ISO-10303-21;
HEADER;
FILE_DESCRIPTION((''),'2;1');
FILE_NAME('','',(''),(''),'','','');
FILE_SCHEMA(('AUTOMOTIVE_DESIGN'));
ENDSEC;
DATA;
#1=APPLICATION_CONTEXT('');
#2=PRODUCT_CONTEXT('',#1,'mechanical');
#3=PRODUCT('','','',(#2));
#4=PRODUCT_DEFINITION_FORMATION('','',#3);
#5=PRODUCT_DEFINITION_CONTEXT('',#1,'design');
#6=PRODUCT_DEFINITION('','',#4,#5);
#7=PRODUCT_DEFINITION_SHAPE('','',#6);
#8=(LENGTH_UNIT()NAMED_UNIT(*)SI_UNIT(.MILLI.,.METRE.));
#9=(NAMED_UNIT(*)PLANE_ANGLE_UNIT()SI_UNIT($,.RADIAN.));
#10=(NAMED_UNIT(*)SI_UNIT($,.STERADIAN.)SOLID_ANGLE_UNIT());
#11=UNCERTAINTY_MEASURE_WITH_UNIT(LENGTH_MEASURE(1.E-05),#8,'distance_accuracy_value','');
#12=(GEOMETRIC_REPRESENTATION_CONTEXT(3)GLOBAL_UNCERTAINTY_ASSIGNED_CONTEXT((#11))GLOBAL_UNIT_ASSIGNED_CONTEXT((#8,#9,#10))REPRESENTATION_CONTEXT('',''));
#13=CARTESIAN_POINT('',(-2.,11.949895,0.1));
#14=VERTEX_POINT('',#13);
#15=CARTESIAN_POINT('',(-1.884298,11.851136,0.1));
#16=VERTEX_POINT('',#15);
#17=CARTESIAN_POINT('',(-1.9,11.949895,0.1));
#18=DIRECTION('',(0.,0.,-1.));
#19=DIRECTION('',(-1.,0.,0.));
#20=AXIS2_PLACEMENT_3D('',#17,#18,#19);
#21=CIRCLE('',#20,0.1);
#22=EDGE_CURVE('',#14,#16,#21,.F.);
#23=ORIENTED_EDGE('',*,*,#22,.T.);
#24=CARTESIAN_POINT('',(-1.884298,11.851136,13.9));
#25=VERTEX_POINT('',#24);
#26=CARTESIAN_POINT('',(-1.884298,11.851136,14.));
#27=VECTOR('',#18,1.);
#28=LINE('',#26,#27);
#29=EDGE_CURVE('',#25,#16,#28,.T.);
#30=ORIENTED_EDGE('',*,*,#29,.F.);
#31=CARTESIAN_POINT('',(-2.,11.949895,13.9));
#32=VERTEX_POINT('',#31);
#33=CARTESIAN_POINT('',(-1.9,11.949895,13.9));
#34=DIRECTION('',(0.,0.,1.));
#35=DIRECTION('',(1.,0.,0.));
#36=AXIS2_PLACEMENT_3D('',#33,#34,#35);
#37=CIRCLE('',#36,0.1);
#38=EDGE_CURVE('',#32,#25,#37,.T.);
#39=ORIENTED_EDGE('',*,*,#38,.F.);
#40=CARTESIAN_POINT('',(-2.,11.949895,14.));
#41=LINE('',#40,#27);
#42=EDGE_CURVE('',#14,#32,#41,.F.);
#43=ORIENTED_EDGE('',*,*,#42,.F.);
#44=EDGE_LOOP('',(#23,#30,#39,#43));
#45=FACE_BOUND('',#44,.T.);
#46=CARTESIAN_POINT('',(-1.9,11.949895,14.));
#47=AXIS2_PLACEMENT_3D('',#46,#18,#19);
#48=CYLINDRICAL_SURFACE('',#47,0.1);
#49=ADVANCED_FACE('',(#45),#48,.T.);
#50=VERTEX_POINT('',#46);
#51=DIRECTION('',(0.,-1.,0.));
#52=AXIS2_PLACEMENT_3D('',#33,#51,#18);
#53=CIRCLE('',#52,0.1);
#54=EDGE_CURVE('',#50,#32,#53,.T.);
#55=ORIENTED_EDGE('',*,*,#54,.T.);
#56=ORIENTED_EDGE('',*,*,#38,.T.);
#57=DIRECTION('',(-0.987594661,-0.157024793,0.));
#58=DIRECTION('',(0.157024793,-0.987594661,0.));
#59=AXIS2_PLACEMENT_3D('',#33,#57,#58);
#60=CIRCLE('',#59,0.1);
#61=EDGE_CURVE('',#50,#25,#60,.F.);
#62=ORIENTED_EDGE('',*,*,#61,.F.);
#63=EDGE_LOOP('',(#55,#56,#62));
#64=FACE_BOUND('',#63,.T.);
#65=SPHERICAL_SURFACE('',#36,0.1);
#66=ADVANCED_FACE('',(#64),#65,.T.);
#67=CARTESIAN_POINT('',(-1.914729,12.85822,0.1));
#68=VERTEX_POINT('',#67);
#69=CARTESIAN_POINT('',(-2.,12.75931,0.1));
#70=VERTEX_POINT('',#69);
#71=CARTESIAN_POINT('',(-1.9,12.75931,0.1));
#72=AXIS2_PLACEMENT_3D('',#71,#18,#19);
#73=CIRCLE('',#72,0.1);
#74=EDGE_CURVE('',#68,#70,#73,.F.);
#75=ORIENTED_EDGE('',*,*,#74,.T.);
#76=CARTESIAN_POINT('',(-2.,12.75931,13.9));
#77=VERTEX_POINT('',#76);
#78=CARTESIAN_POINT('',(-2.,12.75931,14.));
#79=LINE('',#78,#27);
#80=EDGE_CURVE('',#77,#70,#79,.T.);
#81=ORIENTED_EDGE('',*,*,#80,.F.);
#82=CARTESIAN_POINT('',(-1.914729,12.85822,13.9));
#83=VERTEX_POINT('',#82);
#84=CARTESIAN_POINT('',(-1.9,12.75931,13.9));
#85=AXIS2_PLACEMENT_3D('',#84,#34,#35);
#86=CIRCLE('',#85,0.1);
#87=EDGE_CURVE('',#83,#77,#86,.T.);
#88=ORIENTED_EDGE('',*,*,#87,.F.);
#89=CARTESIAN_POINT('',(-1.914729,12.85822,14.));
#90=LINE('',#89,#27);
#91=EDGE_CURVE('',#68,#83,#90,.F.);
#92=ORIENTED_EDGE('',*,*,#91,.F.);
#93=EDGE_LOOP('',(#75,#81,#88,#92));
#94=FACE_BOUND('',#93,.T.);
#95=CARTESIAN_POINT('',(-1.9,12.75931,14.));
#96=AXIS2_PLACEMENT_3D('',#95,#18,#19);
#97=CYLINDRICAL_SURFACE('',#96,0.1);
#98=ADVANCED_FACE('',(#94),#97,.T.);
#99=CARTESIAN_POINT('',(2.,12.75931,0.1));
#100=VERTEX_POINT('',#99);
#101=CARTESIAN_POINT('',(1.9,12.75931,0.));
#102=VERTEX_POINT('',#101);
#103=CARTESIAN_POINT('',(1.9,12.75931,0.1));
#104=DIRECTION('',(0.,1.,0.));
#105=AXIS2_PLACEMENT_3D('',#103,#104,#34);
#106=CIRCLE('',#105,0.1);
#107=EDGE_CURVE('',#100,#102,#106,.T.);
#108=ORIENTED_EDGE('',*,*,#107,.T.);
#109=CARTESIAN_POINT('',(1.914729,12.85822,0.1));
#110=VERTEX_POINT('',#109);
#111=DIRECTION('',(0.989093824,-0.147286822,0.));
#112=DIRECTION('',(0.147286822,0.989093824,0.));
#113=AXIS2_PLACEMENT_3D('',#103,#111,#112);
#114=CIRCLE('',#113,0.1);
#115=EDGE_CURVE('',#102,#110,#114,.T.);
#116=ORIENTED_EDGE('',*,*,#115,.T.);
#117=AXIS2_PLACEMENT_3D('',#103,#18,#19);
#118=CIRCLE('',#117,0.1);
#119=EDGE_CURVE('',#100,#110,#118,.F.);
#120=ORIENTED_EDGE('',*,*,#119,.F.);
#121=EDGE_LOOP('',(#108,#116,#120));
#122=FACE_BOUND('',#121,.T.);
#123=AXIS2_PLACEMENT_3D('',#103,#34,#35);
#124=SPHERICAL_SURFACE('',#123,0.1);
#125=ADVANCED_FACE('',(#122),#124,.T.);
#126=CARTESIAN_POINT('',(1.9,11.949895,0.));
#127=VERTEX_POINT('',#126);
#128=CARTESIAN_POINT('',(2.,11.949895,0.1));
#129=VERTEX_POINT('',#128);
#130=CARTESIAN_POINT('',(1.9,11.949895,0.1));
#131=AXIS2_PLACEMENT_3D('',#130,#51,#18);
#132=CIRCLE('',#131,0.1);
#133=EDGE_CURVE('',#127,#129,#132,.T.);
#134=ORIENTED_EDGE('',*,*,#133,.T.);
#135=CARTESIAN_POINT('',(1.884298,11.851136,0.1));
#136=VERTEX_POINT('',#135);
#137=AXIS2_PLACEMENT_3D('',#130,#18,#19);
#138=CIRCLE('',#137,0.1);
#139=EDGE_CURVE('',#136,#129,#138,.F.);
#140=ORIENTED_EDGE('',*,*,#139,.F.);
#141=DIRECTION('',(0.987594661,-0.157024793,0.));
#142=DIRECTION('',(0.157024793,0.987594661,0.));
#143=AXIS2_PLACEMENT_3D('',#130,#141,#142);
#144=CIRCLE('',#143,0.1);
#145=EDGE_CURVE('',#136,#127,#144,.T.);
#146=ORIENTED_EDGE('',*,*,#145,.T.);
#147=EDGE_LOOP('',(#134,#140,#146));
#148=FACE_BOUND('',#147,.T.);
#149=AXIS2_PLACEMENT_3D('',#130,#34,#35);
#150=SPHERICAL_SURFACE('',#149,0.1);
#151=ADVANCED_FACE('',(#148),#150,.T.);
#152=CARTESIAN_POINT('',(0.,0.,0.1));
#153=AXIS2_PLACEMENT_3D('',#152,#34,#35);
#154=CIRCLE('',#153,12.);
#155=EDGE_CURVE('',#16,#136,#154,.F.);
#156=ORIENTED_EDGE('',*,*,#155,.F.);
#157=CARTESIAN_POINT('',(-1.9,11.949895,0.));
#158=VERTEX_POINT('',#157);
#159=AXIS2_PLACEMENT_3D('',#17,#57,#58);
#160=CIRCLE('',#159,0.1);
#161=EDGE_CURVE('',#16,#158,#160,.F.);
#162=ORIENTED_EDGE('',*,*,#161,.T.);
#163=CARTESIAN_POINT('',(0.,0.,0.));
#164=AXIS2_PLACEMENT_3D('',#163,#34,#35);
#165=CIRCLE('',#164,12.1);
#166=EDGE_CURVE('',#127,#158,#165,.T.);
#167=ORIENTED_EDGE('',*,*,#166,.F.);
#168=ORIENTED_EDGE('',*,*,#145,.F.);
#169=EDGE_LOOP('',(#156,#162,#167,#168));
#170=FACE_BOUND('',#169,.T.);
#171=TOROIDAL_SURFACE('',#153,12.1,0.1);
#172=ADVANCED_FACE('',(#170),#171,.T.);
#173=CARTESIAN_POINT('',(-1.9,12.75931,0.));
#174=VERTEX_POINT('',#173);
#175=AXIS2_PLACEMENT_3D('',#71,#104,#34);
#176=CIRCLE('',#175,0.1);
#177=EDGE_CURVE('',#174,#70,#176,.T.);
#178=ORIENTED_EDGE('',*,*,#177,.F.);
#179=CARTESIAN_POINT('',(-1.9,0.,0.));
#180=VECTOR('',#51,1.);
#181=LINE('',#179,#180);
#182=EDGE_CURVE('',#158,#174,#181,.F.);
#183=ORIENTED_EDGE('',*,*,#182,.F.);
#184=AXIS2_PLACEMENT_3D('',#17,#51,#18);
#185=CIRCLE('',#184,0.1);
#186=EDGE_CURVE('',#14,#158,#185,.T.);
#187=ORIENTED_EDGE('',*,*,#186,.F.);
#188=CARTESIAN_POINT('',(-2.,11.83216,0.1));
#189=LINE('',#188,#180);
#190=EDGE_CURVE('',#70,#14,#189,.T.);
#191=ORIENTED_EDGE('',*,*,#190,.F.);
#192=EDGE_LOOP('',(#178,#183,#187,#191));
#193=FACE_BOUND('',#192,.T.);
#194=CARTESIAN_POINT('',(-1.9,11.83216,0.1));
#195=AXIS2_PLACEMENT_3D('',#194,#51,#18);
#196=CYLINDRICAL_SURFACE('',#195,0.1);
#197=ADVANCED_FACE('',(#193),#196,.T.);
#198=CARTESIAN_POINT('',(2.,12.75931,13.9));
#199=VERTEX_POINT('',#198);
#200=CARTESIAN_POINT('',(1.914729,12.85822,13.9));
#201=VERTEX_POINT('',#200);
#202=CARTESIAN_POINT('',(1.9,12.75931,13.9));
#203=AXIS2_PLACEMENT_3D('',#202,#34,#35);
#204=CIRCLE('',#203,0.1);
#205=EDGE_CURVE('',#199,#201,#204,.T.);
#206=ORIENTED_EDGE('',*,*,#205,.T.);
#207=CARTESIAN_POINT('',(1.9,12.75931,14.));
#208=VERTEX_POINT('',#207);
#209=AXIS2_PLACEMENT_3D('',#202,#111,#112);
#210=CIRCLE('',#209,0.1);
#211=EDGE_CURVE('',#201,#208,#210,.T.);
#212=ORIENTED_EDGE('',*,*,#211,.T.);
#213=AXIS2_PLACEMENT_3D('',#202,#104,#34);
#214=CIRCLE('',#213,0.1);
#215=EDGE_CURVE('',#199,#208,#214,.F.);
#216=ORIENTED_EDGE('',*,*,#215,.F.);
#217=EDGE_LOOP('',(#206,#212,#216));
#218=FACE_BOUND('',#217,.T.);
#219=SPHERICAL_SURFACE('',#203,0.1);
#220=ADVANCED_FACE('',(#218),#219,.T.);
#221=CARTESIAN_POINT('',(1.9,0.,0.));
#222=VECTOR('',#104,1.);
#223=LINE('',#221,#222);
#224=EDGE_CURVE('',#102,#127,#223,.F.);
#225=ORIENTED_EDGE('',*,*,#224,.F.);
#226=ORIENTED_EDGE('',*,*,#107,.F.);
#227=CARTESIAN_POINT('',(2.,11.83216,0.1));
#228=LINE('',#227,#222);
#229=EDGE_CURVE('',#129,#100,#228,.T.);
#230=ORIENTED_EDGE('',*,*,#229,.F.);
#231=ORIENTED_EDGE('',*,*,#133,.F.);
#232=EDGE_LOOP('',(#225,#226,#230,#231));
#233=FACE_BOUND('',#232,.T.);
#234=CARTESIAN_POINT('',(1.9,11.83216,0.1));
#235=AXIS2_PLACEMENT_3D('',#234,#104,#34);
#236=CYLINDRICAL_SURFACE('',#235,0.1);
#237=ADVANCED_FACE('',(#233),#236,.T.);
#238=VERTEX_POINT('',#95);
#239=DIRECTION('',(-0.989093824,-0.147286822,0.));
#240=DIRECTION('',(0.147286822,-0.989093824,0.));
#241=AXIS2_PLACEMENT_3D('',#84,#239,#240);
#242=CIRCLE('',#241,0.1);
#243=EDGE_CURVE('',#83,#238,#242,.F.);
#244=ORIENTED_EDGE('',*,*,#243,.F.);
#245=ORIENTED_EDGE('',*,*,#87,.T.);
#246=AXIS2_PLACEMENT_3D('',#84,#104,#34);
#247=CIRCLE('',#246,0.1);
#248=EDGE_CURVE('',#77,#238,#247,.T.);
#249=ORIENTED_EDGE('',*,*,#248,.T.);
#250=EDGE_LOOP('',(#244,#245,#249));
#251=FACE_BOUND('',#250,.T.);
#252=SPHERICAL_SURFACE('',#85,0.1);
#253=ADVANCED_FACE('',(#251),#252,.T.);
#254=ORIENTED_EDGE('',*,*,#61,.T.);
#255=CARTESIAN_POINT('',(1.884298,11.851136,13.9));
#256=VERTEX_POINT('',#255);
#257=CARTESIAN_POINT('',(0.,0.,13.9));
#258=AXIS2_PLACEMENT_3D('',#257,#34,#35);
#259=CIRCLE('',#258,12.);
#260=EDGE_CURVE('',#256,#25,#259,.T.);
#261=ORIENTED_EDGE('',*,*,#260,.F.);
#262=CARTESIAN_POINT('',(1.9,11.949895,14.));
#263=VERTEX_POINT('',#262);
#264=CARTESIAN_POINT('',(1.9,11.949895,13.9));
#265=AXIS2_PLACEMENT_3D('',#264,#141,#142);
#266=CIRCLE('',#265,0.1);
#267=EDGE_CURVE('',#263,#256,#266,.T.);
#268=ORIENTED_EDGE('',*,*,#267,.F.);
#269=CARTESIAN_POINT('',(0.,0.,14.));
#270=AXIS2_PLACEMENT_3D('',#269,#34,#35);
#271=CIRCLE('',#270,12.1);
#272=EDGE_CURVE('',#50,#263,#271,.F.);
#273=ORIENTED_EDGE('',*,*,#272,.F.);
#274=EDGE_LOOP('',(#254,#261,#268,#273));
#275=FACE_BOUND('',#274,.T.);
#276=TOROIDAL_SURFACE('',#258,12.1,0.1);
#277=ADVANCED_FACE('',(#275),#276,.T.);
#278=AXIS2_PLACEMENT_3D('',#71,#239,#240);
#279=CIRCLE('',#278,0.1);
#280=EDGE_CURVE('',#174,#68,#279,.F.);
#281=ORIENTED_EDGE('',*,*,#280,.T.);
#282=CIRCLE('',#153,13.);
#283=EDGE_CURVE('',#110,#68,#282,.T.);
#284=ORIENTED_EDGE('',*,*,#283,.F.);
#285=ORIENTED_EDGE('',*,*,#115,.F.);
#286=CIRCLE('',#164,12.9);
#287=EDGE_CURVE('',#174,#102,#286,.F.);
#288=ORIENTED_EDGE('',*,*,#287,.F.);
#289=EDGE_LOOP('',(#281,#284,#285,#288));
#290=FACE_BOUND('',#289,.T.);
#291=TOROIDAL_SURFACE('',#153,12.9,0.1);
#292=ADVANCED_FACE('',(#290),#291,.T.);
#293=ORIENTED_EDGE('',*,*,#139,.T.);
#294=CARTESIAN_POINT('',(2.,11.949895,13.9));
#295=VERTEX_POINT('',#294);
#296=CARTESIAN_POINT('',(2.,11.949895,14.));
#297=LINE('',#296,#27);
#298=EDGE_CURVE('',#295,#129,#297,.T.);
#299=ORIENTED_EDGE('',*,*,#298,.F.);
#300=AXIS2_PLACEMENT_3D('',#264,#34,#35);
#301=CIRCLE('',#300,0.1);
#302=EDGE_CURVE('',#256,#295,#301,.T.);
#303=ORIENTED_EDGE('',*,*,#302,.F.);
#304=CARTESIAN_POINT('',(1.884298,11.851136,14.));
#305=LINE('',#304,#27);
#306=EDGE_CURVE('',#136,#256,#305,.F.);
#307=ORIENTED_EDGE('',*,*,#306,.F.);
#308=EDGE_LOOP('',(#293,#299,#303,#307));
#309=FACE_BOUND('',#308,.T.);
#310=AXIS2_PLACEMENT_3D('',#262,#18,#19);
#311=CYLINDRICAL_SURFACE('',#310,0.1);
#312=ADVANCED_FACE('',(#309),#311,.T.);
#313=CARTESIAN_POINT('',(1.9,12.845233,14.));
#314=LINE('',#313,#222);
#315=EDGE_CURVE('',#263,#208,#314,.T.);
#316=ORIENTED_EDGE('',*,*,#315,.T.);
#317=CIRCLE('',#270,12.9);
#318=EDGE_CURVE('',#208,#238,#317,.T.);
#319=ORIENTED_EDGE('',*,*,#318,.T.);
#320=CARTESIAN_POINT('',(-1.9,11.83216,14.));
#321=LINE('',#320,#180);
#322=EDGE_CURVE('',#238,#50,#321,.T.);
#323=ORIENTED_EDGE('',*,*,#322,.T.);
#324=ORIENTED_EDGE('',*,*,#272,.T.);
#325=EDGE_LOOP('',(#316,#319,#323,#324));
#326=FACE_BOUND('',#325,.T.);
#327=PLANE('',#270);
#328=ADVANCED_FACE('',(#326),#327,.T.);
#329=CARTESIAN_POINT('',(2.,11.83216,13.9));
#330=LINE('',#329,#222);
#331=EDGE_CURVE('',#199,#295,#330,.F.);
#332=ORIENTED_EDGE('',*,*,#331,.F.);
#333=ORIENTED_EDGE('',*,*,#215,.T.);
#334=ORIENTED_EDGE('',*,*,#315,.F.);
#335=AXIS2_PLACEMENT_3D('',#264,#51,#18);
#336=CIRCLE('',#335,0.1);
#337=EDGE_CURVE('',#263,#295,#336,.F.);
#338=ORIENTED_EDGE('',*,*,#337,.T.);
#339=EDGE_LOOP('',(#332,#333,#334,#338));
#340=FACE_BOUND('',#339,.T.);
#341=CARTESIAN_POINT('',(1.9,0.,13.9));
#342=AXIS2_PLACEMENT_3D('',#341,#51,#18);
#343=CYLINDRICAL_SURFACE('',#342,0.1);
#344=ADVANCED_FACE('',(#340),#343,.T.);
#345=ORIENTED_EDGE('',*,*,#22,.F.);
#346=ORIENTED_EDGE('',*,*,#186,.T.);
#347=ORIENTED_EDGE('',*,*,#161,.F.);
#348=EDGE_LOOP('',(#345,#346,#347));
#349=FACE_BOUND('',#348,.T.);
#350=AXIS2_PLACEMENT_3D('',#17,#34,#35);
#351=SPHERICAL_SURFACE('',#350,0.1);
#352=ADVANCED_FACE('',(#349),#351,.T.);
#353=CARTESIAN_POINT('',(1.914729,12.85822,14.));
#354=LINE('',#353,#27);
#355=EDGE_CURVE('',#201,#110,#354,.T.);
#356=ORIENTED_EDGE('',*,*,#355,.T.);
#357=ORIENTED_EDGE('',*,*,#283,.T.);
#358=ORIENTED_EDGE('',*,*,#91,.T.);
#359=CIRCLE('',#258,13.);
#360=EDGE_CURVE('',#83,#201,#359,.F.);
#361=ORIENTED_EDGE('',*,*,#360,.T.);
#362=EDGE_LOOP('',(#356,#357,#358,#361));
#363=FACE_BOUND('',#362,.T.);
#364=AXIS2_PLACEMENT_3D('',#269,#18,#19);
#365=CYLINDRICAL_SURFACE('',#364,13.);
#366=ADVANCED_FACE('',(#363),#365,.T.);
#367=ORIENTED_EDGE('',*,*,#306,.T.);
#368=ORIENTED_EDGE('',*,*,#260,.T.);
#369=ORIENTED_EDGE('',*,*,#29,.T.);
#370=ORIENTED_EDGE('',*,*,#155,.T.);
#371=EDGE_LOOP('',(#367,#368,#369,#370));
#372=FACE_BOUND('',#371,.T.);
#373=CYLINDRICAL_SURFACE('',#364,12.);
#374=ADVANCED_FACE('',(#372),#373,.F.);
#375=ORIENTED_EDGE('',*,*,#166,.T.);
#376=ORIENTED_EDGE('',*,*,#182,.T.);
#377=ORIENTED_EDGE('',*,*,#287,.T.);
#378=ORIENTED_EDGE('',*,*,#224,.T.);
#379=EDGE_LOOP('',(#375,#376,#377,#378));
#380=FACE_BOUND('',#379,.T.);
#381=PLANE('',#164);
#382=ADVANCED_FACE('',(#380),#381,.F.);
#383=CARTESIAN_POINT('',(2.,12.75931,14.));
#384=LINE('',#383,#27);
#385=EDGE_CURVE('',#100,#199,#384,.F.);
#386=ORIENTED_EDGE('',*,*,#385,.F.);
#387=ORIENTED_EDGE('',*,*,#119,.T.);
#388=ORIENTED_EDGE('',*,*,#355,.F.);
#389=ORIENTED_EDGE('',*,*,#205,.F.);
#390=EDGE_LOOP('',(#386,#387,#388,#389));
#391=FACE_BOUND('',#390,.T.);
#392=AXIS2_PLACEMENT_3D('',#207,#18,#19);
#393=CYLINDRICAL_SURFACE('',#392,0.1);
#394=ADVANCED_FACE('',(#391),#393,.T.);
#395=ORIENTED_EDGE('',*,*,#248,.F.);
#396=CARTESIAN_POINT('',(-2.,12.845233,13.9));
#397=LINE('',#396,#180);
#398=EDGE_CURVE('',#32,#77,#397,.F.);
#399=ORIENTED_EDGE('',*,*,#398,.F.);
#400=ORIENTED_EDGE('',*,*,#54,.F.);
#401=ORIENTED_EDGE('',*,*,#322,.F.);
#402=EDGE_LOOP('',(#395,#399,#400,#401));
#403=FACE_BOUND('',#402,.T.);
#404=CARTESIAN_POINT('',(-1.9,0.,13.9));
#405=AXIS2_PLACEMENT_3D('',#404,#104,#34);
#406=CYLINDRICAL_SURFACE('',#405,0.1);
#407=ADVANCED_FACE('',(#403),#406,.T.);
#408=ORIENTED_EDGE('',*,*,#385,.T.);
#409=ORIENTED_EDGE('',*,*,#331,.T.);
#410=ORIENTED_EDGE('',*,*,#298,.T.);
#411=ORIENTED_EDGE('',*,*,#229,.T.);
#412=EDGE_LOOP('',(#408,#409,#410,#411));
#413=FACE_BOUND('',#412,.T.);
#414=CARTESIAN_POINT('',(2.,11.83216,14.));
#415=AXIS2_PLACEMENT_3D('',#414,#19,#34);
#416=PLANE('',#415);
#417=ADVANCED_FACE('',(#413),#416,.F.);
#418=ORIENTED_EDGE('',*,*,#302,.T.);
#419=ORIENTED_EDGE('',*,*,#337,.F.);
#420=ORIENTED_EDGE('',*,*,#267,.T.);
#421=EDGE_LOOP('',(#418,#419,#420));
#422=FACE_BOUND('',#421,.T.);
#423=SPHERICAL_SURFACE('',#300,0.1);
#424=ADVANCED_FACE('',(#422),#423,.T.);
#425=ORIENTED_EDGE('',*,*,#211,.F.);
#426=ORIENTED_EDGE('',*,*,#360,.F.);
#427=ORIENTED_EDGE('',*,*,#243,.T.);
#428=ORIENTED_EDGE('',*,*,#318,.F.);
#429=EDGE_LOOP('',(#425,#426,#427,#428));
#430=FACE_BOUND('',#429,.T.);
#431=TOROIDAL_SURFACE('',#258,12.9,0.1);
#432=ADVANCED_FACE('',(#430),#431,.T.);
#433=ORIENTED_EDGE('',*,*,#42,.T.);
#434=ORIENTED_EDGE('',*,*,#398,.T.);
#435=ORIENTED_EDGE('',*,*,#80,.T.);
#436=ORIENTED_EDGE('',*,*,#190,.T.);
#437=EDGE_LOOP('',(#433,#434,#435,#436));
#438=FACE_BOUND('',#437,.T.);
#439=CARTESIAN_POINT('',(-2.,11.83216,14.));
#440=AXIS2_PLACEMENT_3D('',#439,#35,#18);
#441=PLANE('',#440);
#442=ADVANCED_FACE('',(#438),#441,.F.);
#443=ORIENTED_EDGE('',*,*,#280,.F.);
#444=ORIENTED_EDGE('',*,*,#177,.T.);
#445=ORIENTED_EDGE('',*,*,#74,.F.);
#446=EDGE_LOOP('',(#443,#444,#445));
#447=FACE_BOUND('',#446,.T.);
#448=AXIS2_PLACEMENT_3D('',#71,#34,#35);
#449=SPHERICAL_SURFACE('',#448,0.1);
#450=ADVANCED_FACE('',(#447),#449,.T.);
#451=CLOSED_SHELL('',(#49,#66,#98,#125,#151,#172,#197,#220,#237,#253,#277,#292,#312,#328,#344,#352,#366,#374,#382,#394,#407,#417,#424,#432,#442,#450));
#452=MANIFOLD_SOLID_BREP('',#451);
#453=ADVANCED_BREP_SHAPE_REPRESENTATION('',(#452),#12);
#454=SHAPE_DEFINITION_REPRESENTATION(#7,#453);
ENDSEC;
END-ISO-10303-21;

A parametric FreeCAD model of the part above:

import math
import FreeCAD as App
import Part
import Sketcher
from FreeCAD import Vector

doc = App.newDocument("Part")
params = doc.addObject("Spreadsheet::Sheet", "Params")
for row, (alias, value) in enumerate([
    ("sketch1_radius", "13 mm"),
    ("sketch1_radius2", "12 mm"),
    ("pad1_length", "14 mm"),
    ("fillet_radius", "0.1 mm"),
], start=1):
    params.set(f"A{row}", alias)
    params.set(f"B{row}", "=" + value)
    params.setAlias(f"B{row}", alias)

body = doc.addObject("PartDesign::Body", "Body")

# Sketch on XY plane
sketch1 = body.newObject("Sketcher::SketchObject", "Sketch")
sketch1.AttachmentSupport = (doc.getObject("XY_Plane"), [""])
sketch1.MapMode = "FlatFace"
sketch1.addGeometry(Part.LineSegment(Vector(2, 11.83216, 0), Vector(2, 12.845233, 0)), False)
sketch1.addGeometry(Part.ArcOfCircle(Part.Circle(Vector(0, 0, 0), Vector(0, 0, 1), 13), math.radians(81.150117), math.radians(98.849883)), False)
sketch1.addGeometry(Part.LineSegment(Vector(-2, 12.845233, 0), Vector(-2, 11.83216, 0)), False)
sketch1.addGeometry(Part.ArcOfCircle(Part.Circle(Vector(0, 0, 0), Vector(0, 0, 1), 12), math.radians(80.405932), math.radians(99.594068)), False)
sketch1.addConstraint(Sketcher.Constraint("Coincident", 0, 2, 1, 1))
sketch1.addConstraint(Sketcher.Constraint("Coincident", 1, 2, 2, 1))
sketch1.addConstraint(Sketcher.Constraint("Coincident", 2, 2, 3, 2))
sketch1.addConstraint(Sketcher.Constraint("Coincident", 3, 1, 0, 1))
sketch1.addConstraint(Sketcher.Constraint("Vertical", 0))
sketch1.addConstraint(Sketcher.Constraint("Vertical", 2))
sketch1.addConstraint(Sketcher.Constraint("Coincident", 1, 3, -1, 1))
sketch1.addConstraint(Sketcher.Constraint("Coincident", 3, 3, -1, 1))
sketch1.addConstraint(Sketcher.Constraint("Horizontal", 0, 2, 1, 2))
sketch1.addConstraint(Sketcher.Constraint("Radius", 1, 13.0))
sketch1.addConstraint(Sketcher.Constraint("Radius", 3, 12.0))
sketch1.addConstraint(Sketcher.Constraint("DistanceX", -1, 1, 0, 2, 2.0))
sketch1.setExpression("Constraints[9]", "Params.sketch1_radius")
sketch1.setExpression("Constraints[10]", "Params.sketch1_radius2")
pad1 = body.newObject("PartDesign::Pad", "Pad")
pad1.Profile = sketch1
pad1.setExpression("Length", "Params.pad1_length")
doc.recompute()

fillet = body.newObject("PartDesign::Fillet", "Fillet")
fillet.Base = (pad1, ["Edge1"])
fillet.UseAllEdges = True
fillet.setExpression("Radius", "Params.fillet_radius")

doc.recompute()
